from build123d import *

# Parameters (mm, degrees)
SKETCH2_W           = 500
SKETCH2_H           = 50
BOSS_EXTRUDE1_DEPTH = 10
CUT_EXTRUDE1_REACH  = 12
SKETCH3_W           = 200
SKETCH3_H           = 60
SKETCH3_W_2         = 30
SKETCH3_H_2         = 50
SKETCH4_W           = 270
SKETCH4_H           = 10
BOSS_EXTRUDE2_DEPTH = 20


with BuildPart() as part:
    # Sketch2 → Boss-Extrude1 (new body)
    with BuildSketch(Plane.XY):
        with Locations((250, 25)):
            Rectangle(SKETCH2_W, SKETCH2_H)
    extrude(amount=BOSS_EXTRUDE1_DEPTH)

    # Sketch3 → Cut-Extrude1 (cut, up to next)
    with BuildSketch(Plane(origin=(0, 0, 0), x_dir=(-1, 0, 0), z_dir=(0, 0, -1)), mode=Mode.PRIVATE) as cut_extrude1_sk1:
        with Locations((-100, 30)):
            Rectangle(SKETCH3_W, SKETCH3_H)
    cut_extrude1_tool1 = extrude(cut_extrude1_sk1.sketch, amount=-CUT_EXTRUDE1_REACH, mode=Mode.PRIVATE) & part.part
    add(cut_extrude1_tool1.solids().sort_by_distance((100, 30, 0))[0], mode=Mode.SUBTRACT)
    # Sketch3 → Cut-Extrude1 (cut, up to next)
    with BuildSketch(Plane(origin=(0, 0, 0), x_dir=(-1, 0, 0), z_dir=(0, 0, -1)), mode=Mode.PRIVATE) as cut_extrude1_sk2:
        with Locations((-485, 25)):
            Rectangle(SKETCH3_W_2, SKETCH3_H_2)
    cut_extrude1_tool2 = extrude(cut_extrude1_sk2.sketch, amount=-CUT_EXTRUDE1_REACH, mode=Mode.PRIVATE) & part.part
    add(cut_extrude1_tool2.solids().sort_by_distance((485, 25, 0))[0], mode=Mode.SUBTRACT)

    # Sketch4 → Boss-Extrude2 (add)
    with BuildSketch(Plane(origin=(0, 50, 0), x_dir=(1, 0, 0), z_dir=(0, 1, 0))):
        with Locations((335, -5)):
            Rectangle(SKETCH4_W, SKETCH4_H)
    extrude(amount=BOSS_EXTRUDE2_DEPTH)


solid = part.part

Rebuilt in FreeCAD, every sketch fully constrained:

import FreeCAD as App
import Part
import Sketcher
Q = App.Units.Quantity

doc = App.newDocument("Part")
body = doc.addObject("PartDesign::Body", "Body")

sketch1 = doc.addObject("Sketcher::SketchObject", "Sketch")
body.addObject(sketch1)
sketch1.AttachmentSupport = (doc.XY_Plane, [""])
sketch1.MapMode = "FlatFace"
sketch1.addGeometry(Part.LineSegment(App.Vector(0, 50, 0), App.Vector(0, 0, 0)), False)
sketch1.addGeometry(Part.LineSegment(App.Vector(0, 0, 0), App.Vector(500, 0, 0)), False)
sketch1.addGeometry(Part.LineSegment(App.Vector(500, 0, 0), App.Vector(500, 50, 0)), False)
sketch1.addGeometry(Part.LineSegment(App.Vector(500, 50, 0), App.Vector(0, 50, 0)), False)
sketch1.addConstraint(Sketcher.Constraint("Coincident", 0, 2, 1, 1))
sketch1.addConstraint(Sketcher.Constraint("Coincident", 1, 2, 2, 1))
sketch1.addConstraint(Sketcher.Constraint("Coincident", 2, 2, 3, 1))
sketch1.addConstraint(Sketcher.Constraint("Coincident", 3, 2, 0, 1))
sketch1.addConstraint(Sketcher.Constraint("Vertical", 0))
sketch1.addConstraint(Sketcher.Constraint("Horizontal", 1))
sketch1.addConstraint(Sketcher.Constraint("Vertical", 2))
sketch1.addConstraint(Sketcher.Constraint("Horizontal", 3))
sketch1.addConstraint(Sketcher.Constraint("Coincident", 0, 2, -1, 1))
sketch1.addConstraint(Sketcher.Constraint("DistanceX", 1, 1, 1, 2, Q("500 mm")))
sketch1.addConstraint(Sketcher.Constraint("DistanceY", 0, 2, 0, 1, Q("50 mm")))
pad1 = doc.addObject("PartDesign::Pad", "Pad")
body.addObject(pad1)
pad1.Profile = sketch1
pad1.Length = 10

sketch2 = doc.addObject("Sketcher::SketchObject", "Sketch001")
body.addObject(sketch2)
sketch2.AttachmentSupport = (doc.XY_Plane, [""])
sketch2.MapMode = "FlatFace"
sketch2.addGeometry(Part.LineSegment(App.Vector(200, 60, 0), App.Vector(200, 0, 0)), False)
sketch2.addGeometry(Part.LineSegment(App.Vector(200, 0, 0), App.Vector(0, 0, 0)), False)
sketch2.addGeometry(Part.LineSegment(App.Vector(0, 0, 0), App.Vector(0, 60, 0)), False)
sketch2.addGeometry(Part.LineSegment(App.Vector(0, 60, 0), App.Vector(200, 60, 0)), False)
sketch2.addConstraint(Sketcher.Constraint("Coincident", 0, 2, 1, 1))
sketch2.addConstraint(Sketcher.Constraint("Coincident", 1, 2, 2, 1))
sketch2.addConstraint(Sketcher.Constraint("Coincident", 2, 2, 3, 1))
sketch2.addConstraint(Sketcher.Constraint("Coincident", 3, 2, 0, 1))
sketch2.addConstraint(Sketcher.Constraint("Vertical", 0))
sketch2.addConstraint(Sketcher.Constraint("Horizontal", 1))
sketch2.addConstraint(Sketcher.Constraint("Vertical", 2))
sketch2.addConstraint(Sketcher.Constraint("Horizontal", 3))
sketch2.addConstraint(Sketcher.Constraint("Coincident", 1, 2, -1, 1))
sketch2.addConstraint(Sketcher.Constraint("DistanceX", 1, 2, 1, 1, Q("200 mm")))
sketch2.addConstraint(Sketcher.Constraint("DistanceY", 0, 2, 0, 1, Q("60 mm")))
pocket1 = doc.addObject("PartDesign::Pocket", "Pocket")
body.addObject(pocket1)
pocket1.Profile = sketch2
pocket1.Type = "UpToFirst"
pocket1.Reversed = True

sketch3 = doc.addObject("Sketcher::SketchObject", "Sketch002")
body.addObject(sketch3)
sketch3.AttachmentSupport = (doc.XY_Plane, [""])
sketch3.MapMode = "FlatFace"
sketch3.addGeometry(Part.LineSegment(App.Vector(500, 50, 0), App.Vector(500, 0, 0)), False)
sketch3.addGeometry(Part.LineSegment(App.Vector(500, 0, 0), App.Vector(470, 0, 0)), False)
sketch3.addGeometry(Part.LineSegment(App.Vector(470, 0, 0), App.Vector(470, 50, 0)), False)
sketch3.addGeometry(Part.LineSegment(App.Vector(470, 50, 0), App.Vector(500, 50, 0)), False)
sketch3.addConstraint(Sketcher.Constraint("Coincident", 0, 2, 1, 1))
sketch3.addConstraint(Sketcher.Constraint("Coincident", 1, 2, 2, 1))
sketch3.addConstraint(Sketcher.Constraint("Coincident", 2, 2, 3, 1))
sketch3.addConstraint(Sketcher.Constraint("Coincident", 3, 2, 0, 1))
sketch3.addConstraint(Sketcher.Constraint("Vertical", 0))
sketch3.addConstraint(Sketcher.Constraint("Horizontal", 1))
sketch3.addConstraint(Sketcher.Constraint("Vertical", 2))
sketch3.addConstraint(Sketcher.Constraint("Horizontal", 3))
sketch3.addConstraint(Sketcher.Constraint("PointOnObject", 0, 2, -1))
sketch3.addConstraint(Sketcher.Constraint("DistanceX", 1, 2, 1, 1, Q("30 mm")))
sketch3.addConstraint(Sketcher.Constraint("DistanceY", 0, 2, 0, 1, Q("50 mm")))
sketch3.addConstraint(Sketcher.Constraint("DistanceX", -1, 1, 0, 2, Q("500 mm")))
pocket2 = doc.addObject("PartDesign::Pocket", "Pocket001")
body.addObject(pocket2)
pocket2.Profile = sketch3
pocket2.Type = "UpToFirst"
pocket2.Reversed = True

sketch4 = doc.addObject("Sketcher::SketchObject", "Sketch003")
body.addObject(sketch4)
sketch4.AttachmentSupport = (doc.XZ_Plane, [""])
sketch4.MapMode = "FlatFace"
sketch4.AttachmentOffset = App.Placement(App.Vector(0, 0, -50), App.Rotation())
sketch4.addGeometry(Part.LineSegment(App.Vector(200, 0, 0), App.Vector(200, 10, 0)), False)
sketch4.addGeometry(Part.LineSegment(App.Vector(200, 10, 0), App.Vector(470, 10, 0)), False)
sketch4.addGeometry(Part.LineSegment(App.Vector(470, 10, 0), App.Vector(470, 0, 0)), False)
sketch4.addGeometry(Part.LineSegment(App.Vector(470, 0, 0), App.Vector(200, 0, 0)), False)
sketch4.addConstraint(Sketcher.Constraint("Coincident", 0, 2, 1, 1))
sketch4.addConstraint(Sketcher.Constraint("Coincident", 1, 2, 2, 1))
sketch4.addConstraint(Sketcher.Constraint("Coincident", 2, 2, 3, 1))
sketch4.addConstraint(Sketcher.Constraint("Coincident", 3, 2, 0, 1))
sketch4.addConstraint(Sketcher.Constraint("Vertical", 0))
sketch4.addConstraint(Sketcher.Constraint("Horizontal", 1))
sketch4.addConstraint(Sketcher.Constraint("Vertical", 2))
sketch4.addConstraint(Sketcher.Constraint("Horizontal", 3))
sketch4.addConstraint(Sketcher.Constraint("PointOnObject", 2, 2, -1))
sketch4.addConstraint(Sketcher.Constraint("DistanceX", 1, 1, 1, 2, Q("270 mm")))
sketch4.addConstraint(Sketcher.Constraint("DistanceY", 0, 1, 0, 2, Q("10 mm")))
sketch4.addConstraint(Sketcher.Constraint("DistanceX", -1, 1, 0, 2, Q("200 mm")))
pad2 = doc.addObject("PartDesign::Pad", "Pad001")
body.addObject(pad2)
pad2.Profile = sketch4
pad2.Length = 20
pad2.Reversed = True

doc.recompute()
